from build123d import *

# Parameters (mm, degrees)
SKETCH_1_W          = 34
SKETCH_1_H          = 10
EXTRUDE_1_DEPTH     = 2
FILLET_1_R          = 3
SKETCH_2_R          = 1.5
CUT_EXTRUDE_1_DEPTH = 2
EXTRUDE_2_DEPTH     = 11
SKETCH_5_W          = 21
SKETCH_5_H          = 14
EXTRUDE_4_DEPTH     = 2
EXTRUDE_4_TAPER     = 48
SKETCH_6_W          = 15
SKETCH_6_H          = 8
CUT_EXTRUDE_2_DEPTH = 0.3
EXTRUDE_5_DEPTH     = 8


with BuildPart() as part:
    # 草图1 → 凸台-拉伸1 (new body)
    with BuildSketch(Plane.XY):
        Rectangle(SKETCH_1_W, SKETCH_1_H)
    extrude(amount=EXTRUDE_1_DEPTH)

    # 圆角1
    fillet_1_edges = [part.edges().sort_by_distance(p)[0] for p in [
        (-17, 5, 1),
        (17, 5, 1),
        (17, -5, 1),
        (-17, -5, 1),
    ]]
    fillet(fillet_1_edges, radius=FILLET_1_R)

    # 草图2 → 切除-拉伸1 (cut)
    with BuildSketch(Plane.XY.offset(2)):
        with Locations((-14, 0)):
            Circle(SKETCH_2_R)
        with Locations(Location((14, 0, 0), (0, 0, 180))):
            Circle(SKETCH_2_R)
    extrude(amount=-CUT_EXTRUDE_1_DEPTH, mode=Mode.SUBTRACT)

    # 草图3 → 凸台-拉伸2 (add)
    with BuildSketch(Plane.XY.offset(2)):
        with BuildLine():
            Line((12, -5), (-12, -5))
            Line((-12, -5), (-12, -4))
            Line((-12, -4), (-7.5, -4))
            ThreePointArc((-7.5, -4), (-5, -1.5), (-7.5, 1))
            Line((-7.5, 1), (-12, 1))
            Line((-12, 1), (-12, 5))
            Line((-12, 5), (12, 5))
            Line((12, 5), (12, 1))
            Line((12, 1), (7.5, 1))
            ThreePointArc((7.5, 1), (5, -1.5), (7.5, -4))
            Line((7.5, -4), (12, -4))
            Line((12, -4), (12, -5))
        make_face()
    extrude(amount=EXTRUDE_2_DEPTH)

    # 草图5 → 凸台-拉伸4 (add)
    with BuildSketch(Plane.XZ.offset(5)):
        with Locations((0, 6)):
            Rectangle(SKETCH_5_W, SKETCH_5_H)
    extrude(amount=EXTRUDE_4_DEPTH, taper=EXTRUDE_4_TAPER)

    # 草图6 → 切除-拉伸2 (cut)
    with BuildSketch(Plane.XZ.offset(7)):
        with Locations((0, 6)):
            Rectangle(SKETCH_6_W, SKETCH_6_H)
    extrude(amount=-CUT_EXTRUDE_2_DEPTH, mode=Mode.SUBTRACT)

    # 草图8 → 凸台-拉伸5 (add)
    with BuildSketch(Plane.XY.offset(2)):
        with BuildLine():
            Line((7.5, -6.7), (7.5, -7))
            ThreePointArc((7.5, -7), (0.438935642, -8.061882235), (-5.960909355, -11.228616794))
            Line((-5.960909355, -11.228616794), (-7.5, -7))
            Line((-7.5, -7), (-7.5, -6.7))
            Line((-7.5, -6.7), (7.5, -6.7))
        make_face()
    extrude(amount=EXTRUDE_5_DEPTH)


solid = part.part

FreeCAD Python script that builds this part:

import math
import FreeCAD as App
import Part
import Sketcher
Q = App.Units.Quantity


def edges_at(feature, points):
    """Names of the edges that pass closest to the given points."""
    edges = feature.Shape.Edges
    near = lambda p: min(range(len(edges)), key=lambda i: edges[i].distToShape(Part.Vertex(*p))[0])
    return sorted({f"Edge{near(p) + 1}" for p in points})

doc = App.newDocument("Part")
body = doc.addObject("PartDesign::Body", "Body")

# Sketch on XY plane
sketch1 = body.newObject("Sketcher::SketchObject", "Sketch")
sketch1.AttachmentSupport = (doc.getObject("XY_Plane"), [""])
sketch1.MapMode = "FlatFace"
sketch1.addGeometry(Part.LineSegment(App.Vector(-17, 5, 0), App.Vector(-17, -5, 0)), False)
sketch1.addGeometry(Part.LineSegment(App.Vector(-17, -5, 0), App.Vector(17, -5, 0)), False)
sketch1.addGeometry(Part.LineSegment(App.Vector(17, -5, 0), App.Vector(17, 5, 0)), False)
sketch1.addGeometry(Part.LineSegment(App.Vector(17, 5, 0), App.Vector(-17, 5, 0)), False)
sketch1.addConstraint(Sketcher.Constraint("Coincident", 0, 2, 1, 1))
sketch1.addConstraint(Sketcher.Constraint("Coincident", 1, 2, 2, 1))
sketch1.addConstraint(Sketcher.Constraint("Coincident", 2, 2, 3, 1))
sketch1.addConstraint(Sketcher.Constraint("Coincident", 3, 2, 0, 1))
sketch1.addConstraint(Sketcher.Constraint("Vertical", 0))
sketch1.addConstraint(Sketcher.Constraint("Horizontal", 1))
sketch1.addConstraint(Sketcher.Constraint("Vertical", 2))
sketch1.addConstraint(Sketcher.Constraint("Horizontal", 3))
sketch1.addConstraint(Sketcher.Constraint("Symmetric", 0, 2, 2, 2, -1, 1))
sketch1.addConstraint(Sketcher.Constraint("DistanceX", 1, 1, 1, 2, Q("34 mm")))
sketch1.addConstraint(Sketcher.Constraint("DistanceY", 0, 2, 0, 1, Q("10 mm")))
pad1 = body.newObject("PartDesign::Pad", "Pad")
pad1.Profile = sketch1
pad1.Length = 2
doc.recompute()

fillet = body.newObject("PartDesign::Fillet", "Fillet")
fillet.Base = (pad1, edges_at(pad1, [
    (-17, 5, 1),
    (17, 5, 1),
    (17, -5, 1),
    (-17, -5, 1),
]))
fillet.Radius = 3

# Sketch on XY plane
sketch2 = body.newObject("Sketcher::SketchObject", "Sketch001")
sketch2.AttachmentSupport = (doc.getObject("XY_Plane"), [""])
sketch2.MapMode = "FlatFace"
sketch2.AttachmentOffset = App.Placement(App.Vector(0, 0, 2), App.Rotation())
sketch2.addGeometry(Part.Circle(App.Vector(-14, 0, 0), App.Vector(0, 0, 1), 1.5), False)
sketch2.addGeometry(Part.Circle(App.Vector(14, 0, 0), App.Vector(0, 0, 1), 1.5), False)
sketch2.addConstraint(Sketcher.Constraint("Equal", 0, 1))
sketch2.addConstraint(Sketcher.Constraint("Symmetric", 0, 3, 1, 3, -1, 1))
sketch2.addConstraint(Sketcher.Constraint("PointOnObject", 0, 3, -1))
sketch2.addConstraint(Sketcher.Constraint("Diameter", 0, Q("3 mm")))
sketch2.addConstraint(Sketcher.Constraint("DistanceX", 0, 3, -1, 1, Q("14 mm")))
pocket1 = body.newObject("PartDesign::Pocket", "Pocket")
pocket1.Profile = sketch2
pocket1.Length = 2

# Sketch on XY plane
sketch3 = body.newObject("Sketcher::SketchObject", "Sketch002")
sketch3.AttachmentSupport = (doc.getObject("XY_Plane"), [""])
sketch3.MapMode = "FlatFace"
sketch3.AttachmentOffset = App.Placement(App.Vector(0, 0, 2), App.Rotation())
sketch3.addGeometry(Part.LineSegment(App.Vector(-12, -5, 0), App.Vector(12, -5, 0)), False)
sketch3.addGeometry(Part.LineSegment(App.Vector(12, -5, 0), App.Vector(12, -4, 0)), False)
sketch3.addGeometry(Part.LineSegment(App.Vector(12, -4, 0), App.Vector(7.5, -4, 0)), False)
sketch3.addGeometry(Part.ArcOfCircle(Part.Circle(App.Vector(7.5, -1.5, 0), App.Vector(0, 0, 1), 2.5), math.radians(90), math.radians(270)), False)
sketch3.addGeometry(Part.LineSegment(App.Vector(7.5, 1, 0), App.Vector(12, 1, 0)), False)
sketch3.addGeometry(Part.LineSegment(App.Vector(12, 1, 0), App.Vector(12, 5, 0)), False)
sketch3.addGeometry(Part.LineSegment(App.Vector(12, 5, 0), App.Vector(-12, 5, 0)), False)
sketch3.addGeometry(Part.LineSegment(App.Vector(-12, 5, 0), App.Vector(-12, 1, 0)), False)
sketch3.addGeometry(Part.LineSegment(App.Vector(-12, 1, 0), App.Vector(-7.5, 1, 0)), False)
sketch3.addGeometry(Part.ArcOfCircle(Part.Circle(App.Vector(-7.5, -1.5, 0), App.Vector(0, 0, 1), 2.5), math.radians(-90), math.radians(90)), False)
sketch3.addGeometry(Part.LineSegment(App.Vector(-7.5, -4, 0), App.Vector(-12, -4, 0)), False)
sketch3.addGeometry(Part.LineSegment(App.Vector(-12, -4, 0), App.Vector(-12, -5, 0)), False)
sketch3.addConstraint(Sketcher.Constraint("Coincident", 0, 2, 1, 1))
sketch3.addConstraint(Sketcher.Constraint("Coincident", 1, 2, 2, 1))
sketch3.addConstraint(Sketcher.Constraint("Tangent", 2, 2, 3, 2))
sketch3.addConstraint(Sketcher.Constraint("Tangent", 3, 1, 4, 1))
sketch3.addConstraint(Sketcher.Constraint("Coincident", 4, 2, 5, 1))
sketch3.addConstraint(Sketcher.Constraint("Coincident", 5, 2, 6, 1))
sketch3.addConstraint(Sketcher.Constraint("Coincident", 6, 2, 7, 1))
sketch3.addConstraint(Sketcher.Constraint("Coincident", 7, 2, 8, 1))
sketch3.addConstraint(Sketcher.Constraint("Tangent", 8, 2, 9, 2))
sketch3.addConstraint(Sketcher.Constraint("Tangent", 9, 1, 10, 1))
sketch3.addConstraint(Sketcher.Constraint("Coincident", 10, 2, 11, 1))
sketch3.addConstraint(Sketcher.Constraint("Coincident", 11, 2, 0, 1))
sketch3.addConstraint(Sketcher.Constraint("Horizontal", 0))
sketch3.addConstraint(Sketcher.Constraint("Vertical", 1))
sketch3.addConstraint(Sketcher.Constraint("Horizontal", 2))
sketch3.addConstraint(Sketcher.Constraint("Horizontal", 4))
sketch3.addConstraint(Sketcher.Constraint("Vertical", 5))
sketch3.addConstraint(Sketcher.Constraint("Horizontal", 6))
sketch3.addConstraint(Sketcher.Constraint("Vertical", 7))
sketch3.addConstraint(Sketcher.Constraint("Horizontal", 8))
sketch3.addConstraint(Sketcher.Constraint("Horizontal", 10))
sketch3.addConstraint(Sketcher.Constraint("Vertical", 11))
sketch3.addConstraint(Sketcher.Constraint("Equal", 3, 9))
sketch3.addConstraint(Sketcher.Constraint("Symmetric", 0, 2, 6, 2, -1, 1))
sketch3.addConstraint(Sketcher.Constraint("Symmetric", 3, 3, 9, 3, -2))
sketch3.addConstraint(Sketcher.Constraint("Vertical", 1, 2, 4, 2))
sketch3.addConstraint(Sketcher.Constraint("Vertical", 7, 2, 10, 2))
sketch3.addConstraint(Sketcher.Constraint("Radius", 3, Q("2.5 mm")))
sketch3.addConstraint(Sketcher.Constraint("DistanceX", 0, 1, 0, 2, Q("24 mm")))
sketch3.addConstraint(Sketcher.Constraint("DistanceY", 1, 1, 1, 2, Q("1 mm")))
sketch3.addConstraint(Sketcher.Constraint("DistanceY", 5, 1, 5, 2, Q("4 mm")))
sketch3.addConstraint(Sketcher.Constraint("DistanceX", 2, 2, 2, 1, Q("4.5 mm")))
pad2 = body.newObject("PartDesign::Pad", "Pad001")
pad2.Profile = sketch3
pad2.Length = 11

# Sketch on XZ plane
sketch4 = body.newObject("Sketcher::SketchObject", "Sketch003")
sketch4.AttachmentSupport = (doc.getObject("XZ_Plane"), [""])
sketch4.MapMode = "FlatFace"
sketch4.AttachmentOffset = App.Placement(App.Vector(0, 0, 5), App.Rotation())
sketch4.addGeometry(Part.LineSegment(App.Vector(-10, 13, 0), App.Vector(-10, -1, 0)), False)
sketch4.addGeometry(Part.LineSegment(App.Vector(-10, -1, 0), App.Vector(10, -1, 0)), False)
sketch4.addGeometry(Part.LineSegment(App.Vector(10, -1, 0), App.Vector(10, 13, 0)), False)
sketch4.addGeometry(Part.LineSegment(App.Vector(10, 13, 0), App.Vector(-10, 13, 0)), False)
sketch4.addConstraint(Sketcher.Constraint("Coincident", 0, 2, 1, 1))
sketch4.addConstraint(Sketcher.Constraint("Coincident", 1, 2, 2, 1))
sketch4.addConstraint(Sketcher.Constraint("Coincident", 2, 2, 3, 1))
sketch4.addConstraint(Sketcher.Constraint("Coincident", 3, 2, 0, 1))
sketch4.addConstraint(Sketcher.Constraint("Vertical", 0))
sketch4.addConstraint(Sketcher.Constraint("Horizontal", 1))
sketch4.addConstraint(Sketcher.Constraint("Vertical", 2))
sketch4.addConstraint(Sketcher.Constraint("Horizontal", 3))
sketch4.addConstraint(Sketcher.Constraint("DistanceX", 1, 1, 1, 2, Q("21 mm")))
sketch4.addConstraint(Sketcher.Constraint("DistanceY", 0, 2, 0, 1, Q("14 mm")))
sketch4.addConstraint(Sketcher.Constraint("DistanceY", 0, 2, -1, 1, Q("1 mm")))
sketch4.addConstraint(Sketcher.Constraint("DistanceX", 0, 2, -1, 1, Q("10.5 mm")))
pad3 = body.newObject("PartDesign::Pad", "Pad002")
pad3.Profile = sketch4
pad3.Length = 2
pad3.TaperAngle = -48

# Sketch on XZ plane
sketch5 = body.newObject("Sketcher::SketchObject", "Sketch004")
sketch5.AttachmentSupport = (doc.getObject("XZ_Plane"), [""])
sketch5.MapMode = "FlatFace"
sketch5.AttachmentOffset = App.Placement(App.Vector(0, 0, 7), App.Rotation())
sketch5.addGeometry(Part.LineSegment(App.Vector(-8, 10, 0), App.Vector(-8, 2, 0)), False)
sketch5.addGeometry(Part.LineSegment(App.Vector(-8, 2, 0), App.Vector(8, 2, 0)), False)
sketch5.addGeometry(Part.LineSegment(App.Vector(8, 2, 0), App.Vector(8, 10, 0)), False)
sketch5.addGeometry(Part.LineSegment(App.Vector(8, 10, 0), App.Vector(-8, 10, 0)), False)
sketch5.addConstraint(Sketcher.Constraint("Coincident", 0, 2, 1, 1))
sketch5.addConstraint(Sketcher.Constraint("Coincident", 1, 2, 2, 1))
sketch5.addConstraint(Sketcher.Constraint("Coincident", 2, 2, 3, 1))
sketch5.addConstraint(Sketcher.Constraint("Coincident", 3, 2, 0, 1))
sketch5.addConstraint(Sketcher.Constraint("Vertical", 0))
sketch5.addConstraint(Sketcher.Constraint("Horizontal", 1))
sketch5.addConstraint(Sketcher.Constraint("Vertical", 2))
sketch5.addConstraint(Sketcher.Constraint("Horizontal", 3))
sketch5.addConstraint(Sketcher.Constraint("DistanceX", 1, 1, 1, 2, Q("15 mm")))
sketch5.addConstraint(Sketcher.Constraint("DistanceY", 0, 2, 0, 1, Q("8 mm")))
sketch5.addConstraint(Sketcher.Constraint("DistanceY", -1, 1, 0, 2, Q("2 mm")))
sketch5.addConstraint(Sketcher.Constraint("DistanceX", 0, 2, -1, 1, Q("7.5 mm")))
pocket2 = body.newObject("PartDesign::Pocket", "Pocket001")
pocket2.Profile = sketch5
pocket2.Length = 0.3

# Sketch on XY plane
sketch6 = body.newObject("Sketcher::SketchObject", "Sketch005")
sketch6.AttachmentSupport = (doc.getObject("XY_Plane"), [""])
sketch6.MapMode = "FlatFace"
sketch6.AttachmentOffset = App.Placement(App.Vector(0, 0, 2), App.Rotation())
sketch6.addGeometry(Part.LineSegment(App.Vector(7.5, -7, 0), App.Vector(7.5, -6.7, 0)), False)
sketch6.addGeometry(Part.LineSegment(App.Vector(7.5, -6.7, 0), App.Vector(-7.5, -6.7, 0)), False)
sketch6.addGeometry(Part.LineSegment(App.Vector(-7.5, -6.7, 0), App.Vector(-7.5, -7, 0)), False)
sketch6.addGeometry(Part.LineSegment(App.Vector(-7.5, -7, 0), App.Vector(-5.96, -11.23, 0)), False)
sketch6.addGeometry(Part.ArcOfCircle(Part.Circle(App.Vector(7.36, -30.11, 0), App.Vector(0, 0, 1), 23.11), math.radians(90), math.radians(125)), False)
sketch6.addConstraint(Sketcher.Constraint("Coincident", 0, 2, 1, 1))
sketch6.addConstraint(Sketcher.Constraint("Coincident", 1, 2, 2, 1))
sketch6.addConstraint(Sketcher.Constraint("Coincident", 2, 2, 3, 1))
sketch6.addConstraint(Sketcher.Constraint("Coincident", 3, 2, 4, 2))
sketch6.addConstraint(Sketcher.Constraint("Coincident", 4, 1, 0, 1))
sketch6.addConstraint(Sketcher.Constraint("Vertical", 0))
sketch6.addConstraint(Sketcher.Constraint("Horizontal", 1))
sketch6.addConstraint(Sketcher.Constraint("Vertical", 2))
sketch6.addConstraint(Sketcher.Constraint("Symmetric", 2, 2, 4, 1, -2))
sketch6.addConstraint(Sketcher.Constraint("DistanceX", 1, 2, 1, 1, Q("15 mm")))
sketch6.addConstraint(Sketcher.Constraint("Angle", 3, Q("-70 deg")))
sketch6.addConstraint(Sketcher.Constraint("DistanceY", 0, 1, 0, 2, Q("0.3 mm")))
sketch6.addConstraint(Sketcher.Constraint("DistanceY", 2, 2, -1, 1, Q("7 mm")))
sketch6.addConstraint(Sketcher.Constraint("Distance", 3, Q("4.5 mm")))
sketch6.addConstraint(Sketcher.Constraint("Radius", 4, Q("23.109724 mm")))
pad4 = body.newObject("PartDesign::Pad", "Pad003")
pad4.Profile = sketch6
pad4.Length = 8

doc.recompute()
